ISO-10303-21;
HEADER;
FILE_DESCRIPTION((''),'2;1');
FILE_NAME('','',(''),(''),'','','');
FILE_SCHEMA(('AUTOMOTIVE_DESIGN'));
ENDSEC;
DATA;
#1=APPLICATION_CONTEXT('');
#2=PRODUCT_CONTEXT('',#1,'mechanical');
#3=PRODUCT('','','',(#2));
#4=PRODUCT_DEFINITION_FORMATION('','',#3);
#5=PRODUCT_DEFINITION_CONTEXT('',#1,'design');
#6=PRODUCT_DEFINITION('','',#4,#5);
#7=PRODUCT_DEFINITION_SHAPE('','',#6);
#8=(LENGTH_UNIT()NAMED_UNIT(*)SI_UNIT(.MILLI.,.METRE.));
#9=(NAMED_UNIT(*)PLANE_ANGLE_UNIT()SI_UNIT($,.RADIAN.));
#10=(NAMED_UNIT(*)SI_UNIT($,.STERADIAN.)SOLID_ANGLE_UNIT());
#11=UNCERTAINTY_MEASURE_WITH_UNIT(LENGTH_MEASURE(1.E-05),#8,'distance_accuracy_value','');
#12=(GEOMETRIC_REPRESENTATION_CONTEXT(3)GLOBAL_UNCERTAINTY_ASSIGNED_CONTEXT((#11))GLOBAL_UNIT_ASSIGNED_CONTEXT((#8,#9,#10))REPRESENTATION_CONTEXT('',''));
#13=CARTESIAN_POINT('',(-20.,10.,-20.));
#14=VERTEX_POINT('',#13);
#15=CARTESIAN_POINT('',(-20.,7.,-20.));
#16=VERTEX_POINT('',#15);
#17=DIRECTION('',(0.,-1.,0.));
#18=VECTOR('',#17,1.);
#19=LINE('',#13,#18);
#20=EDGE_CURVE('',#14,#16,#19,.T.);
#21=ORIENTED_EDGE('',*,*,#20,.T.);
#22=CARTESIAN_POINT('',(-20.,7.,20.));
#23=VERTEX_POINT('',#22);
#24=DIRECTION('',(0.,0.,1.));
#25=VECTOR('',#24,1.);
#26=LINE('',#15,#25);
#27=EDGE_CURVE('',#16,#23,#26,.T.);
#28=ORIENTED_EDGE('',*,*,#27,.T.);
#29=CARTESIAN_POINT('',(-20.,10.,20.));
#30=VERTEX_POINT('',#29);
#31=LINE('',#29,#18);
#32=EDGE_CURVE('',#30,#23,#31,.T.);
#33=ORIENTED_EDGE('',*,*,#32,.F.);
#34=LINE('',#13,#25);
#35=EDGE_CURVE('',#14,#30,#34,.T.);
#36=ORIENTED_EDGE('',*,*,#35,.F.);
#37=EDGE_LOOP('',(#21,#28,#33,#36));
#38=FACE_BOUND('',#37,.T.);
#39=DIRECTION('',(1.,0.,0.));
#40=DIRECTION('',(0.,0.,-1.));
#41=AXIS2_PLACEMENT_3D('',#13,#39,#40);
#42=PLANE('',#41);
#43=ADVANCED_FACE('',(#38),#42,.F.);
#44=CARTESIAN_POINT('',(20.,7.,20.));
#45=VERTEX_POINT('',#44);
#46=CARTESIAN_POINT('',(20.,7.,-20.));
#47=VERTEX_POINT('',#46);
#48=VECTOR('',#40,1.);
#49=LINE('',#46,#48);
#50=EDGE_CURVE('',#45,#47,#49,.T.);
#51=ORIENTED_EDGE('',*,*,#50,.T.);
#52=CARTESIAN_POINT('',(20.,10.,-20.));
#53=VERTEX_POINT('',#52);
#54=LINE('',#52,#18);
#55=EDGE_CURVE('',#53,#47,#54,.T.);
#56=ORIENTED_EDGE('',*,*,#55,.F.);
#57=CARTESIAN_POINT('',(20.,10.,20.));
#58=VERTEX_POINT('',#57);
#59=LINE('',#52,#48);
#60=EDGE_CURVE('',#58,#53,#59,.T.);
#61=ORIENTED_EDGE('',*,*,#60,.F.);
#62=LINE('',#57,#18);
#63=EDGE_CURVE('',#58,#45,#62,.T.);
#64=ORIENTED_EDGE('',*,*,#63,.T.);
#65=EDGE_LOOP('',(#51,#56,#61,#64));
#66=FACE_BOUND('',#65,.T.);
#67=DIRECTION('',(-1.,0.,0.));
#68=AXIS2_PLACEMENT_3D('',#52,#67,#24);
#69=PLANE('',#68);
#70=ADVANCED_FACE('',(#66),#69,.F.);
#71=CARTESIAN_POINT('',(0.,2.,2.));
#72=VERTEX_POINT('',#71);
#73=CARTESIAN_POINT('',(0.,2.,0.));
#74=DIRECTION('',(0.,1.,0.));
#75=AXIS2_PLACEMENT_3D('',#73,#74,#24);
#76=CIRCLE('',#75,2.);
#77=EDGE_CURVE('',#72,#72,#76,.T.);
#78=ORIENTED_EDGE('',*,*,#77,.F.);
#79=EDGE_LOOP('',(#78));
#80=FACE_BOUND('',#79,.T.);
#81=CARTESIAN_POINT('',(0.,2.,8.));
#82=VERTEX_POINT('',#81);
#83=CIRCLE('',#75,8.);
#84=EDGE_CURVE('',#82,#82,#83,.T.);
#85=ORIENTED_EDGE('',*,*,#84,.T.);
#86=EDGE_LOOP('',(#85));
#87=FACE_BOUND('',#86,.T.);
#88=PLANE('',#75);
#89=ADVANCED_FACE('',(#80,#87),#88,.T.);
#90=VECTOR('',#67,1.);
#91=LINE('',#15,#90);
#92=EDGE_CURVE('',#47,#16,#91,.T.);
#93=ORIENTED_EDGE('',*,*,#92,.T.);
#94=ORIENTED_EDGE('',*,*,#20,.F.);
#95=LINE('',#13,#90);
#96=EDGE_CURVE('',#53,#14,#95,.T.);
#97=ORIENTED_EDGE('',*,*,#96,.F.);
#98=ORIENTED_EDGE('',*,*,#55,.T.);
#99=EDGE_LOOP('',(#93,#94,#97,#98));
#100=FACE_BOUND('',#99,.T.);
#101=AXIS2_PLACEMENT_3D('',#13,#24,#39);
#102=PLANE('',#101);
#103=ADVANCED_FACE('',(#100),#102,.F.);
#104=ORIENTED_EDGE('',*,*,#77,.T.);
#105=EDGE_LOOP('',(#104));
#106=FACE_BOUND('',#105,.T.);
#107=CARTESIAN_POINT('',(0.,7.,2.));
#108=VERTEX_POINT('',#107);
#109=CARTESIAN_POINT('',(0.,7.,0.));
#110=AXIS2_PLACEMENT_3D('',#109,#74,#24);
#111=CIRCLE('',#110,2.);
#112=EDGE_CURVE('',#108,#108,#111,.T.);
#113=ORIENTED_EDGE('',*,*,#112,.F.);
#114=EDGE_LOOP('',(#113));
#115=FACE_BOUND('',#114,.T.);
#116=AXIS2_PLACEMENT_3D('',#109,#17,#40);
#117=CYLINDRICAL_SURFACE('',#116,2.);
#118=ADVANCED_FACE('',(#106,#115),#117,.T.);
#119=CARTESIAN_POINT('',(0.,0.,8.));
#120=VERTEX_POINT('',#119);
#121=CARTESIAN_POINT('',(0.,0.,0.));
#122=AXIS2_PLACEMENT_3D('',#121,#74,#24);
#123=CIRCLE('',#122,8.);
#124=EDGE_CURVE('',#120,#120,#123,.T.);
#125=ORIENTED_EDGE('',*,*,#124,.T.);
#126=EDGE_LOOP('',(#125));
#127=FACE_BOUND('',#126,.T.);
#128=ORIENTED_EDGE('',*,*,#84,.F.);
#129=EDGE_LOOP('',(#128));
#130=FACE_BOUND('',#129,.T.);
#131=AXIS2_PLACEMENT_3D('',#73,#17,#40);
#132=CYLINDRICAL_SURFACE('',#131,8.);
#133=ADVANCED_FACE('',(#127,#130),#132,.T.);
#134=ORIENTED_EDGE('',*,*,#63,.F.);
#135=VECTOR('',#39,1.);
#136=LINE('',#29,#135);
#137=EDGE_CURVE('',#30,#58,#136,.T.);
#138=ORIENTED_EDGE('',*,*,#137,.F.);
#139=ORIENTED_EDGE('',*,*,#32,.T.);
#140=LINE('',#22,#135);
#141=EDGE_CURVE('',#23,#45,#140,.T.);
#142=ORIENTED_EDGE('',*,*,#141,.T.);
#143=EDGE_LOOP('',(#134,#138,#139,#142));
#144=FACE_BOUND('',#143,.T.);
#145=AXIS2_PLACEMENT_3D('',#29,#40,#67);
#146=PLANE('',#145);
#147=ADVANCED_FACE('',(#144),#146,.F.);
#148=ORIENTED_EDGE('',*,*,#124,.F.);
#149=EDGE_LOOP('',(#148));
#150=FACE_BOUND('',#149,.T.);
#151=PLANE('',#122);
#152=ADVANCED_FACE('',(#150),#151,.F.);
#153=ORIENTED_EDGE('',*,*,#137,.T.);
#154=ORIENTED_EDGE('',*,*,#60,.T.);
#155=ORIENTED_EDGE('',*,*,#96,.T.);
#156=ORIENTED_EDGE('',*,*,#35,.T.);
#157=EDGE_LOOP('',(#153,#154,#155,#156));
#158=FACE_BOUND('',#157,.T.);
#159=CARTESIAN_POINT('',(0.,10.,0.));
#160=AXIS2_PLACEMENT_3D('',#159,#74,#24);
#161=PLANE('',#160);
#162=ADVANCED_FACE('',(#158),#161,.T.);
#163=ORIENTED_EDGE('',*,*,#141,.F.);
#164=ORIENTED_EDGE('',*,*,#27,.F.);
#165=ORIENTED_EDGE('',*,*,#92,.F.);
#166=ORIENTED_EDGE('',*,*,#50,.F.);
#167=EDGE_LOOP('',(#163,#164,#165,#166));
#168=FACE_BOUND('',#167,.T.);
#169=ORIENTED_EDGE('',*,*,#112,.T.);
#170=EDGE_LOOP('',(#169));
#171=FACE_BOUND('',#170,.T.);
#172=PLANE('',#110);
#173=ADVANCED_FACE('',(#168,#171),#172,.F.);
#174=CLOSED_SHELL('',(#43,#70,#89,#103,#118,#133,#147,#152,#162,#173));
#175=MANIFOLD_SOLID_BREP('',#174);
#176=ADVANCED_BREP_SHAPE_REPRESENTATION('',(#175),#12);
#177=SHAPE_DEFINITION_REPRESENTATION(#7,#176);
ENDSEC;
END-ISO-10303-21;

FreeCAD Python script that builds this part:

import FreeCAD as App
import Part
import Sketcher
Q = App.Units.Quantity


def add_polygon(sketch, points):
    """Adds a closed chain of lines whose ends are joined by coincident constraints."""
    first, n = sketch.GeometryCount, len(points)
    for a, b in zip(points, points[1:] + points[:1]):
        sketch.addGeometry(Part.LineSegment(App.Vector(*a, 0), App.Vector(*b, 0)), False)
    for i in range(n):
        sketch.addConstraint(Sketcher.Constraint("Coincident", first + i, 2, first + (i + 1) % n, 1))

doc = App.newDocument("Part")
params = doc.addObject("Spreadsheet::Sheet", "Params")
for row, (alias, value) in enumerate([
    ("sketch1_diameter", "16 mm"),
    ("pad1_length", "2 mm"),
    ("sketch2_diameter", "4 mm"),
    ("pad2_length", "5 mm"),
    ("sketch3_width", "40 mm"),
    ("pad3_length", "3 mm"),
], start=1):
    params.set(f"A{row}", alias)
    params.set(f"B{row}", "=" + value)
    params.setAlias(f"B{row}", alias)

body = doc.addObject("PartDesign::Body", "Body")

# Sketch on XZ plane
sketch1 = body.newObject("Sketcher::SketchObject", "Sketch")
sketch1.AttachmentSupport = (doc.getObject("XZ_Plane"), [""])
sketch1.MapMode = "FlatFace"
sketch1.addGeometry(Part.Circle(App.Vector(0, 0, 0), App.Vector(0, 0, 1), 8), False)
sketch1.addConstraint([
    Sketcher.Constraint("Coincident", 0, 3, -1, 1),
    Sketcher.Constraint("Diameter", 0, Q("16 mm")),
])
sketch1.setExpression("Constraints[1]", "Params.sketch1_diameter")
pad1 = body.newObject("PartDesign::Pad", "Pad")
pad1.Profile = sketch1
pad1.setExpression("Length", "Params.pad1_length")
pad1.Reversed = True

# Sketch on XZ plane
sketch2 = body.newObject("Sketcher::SketchObject", "Sketch001")
sketch2.AttachmentSupport = (doc.getObject("XZ_Plane"), [""])
sketch2.MapMode = "FlatFace"
sketch2.AttachmentOffset = App.Placement(App.Vector(0, 0, -2), App.Rotation())
sketch2.addGeometry(Part.Circle(App.Vector(0, 0, 0), App.Vector(0, 0, 1), 2), False)
sketch2.addConstraint([
    Sketcher.Constraint("Coincident", 0, 3, -1, 1),
    Sketcher.Constraint("Diameter", 0, Q("4 mm")),
])
sketch2.setExpression("Constraints[1]", "Params.sketch2_diameter")
pad2 = body.newObject("PartDesign::Pad", "Pad001")
pad2.Profile = sketch2
pad2.setExpression("Length", "Params.pad2_length")
pad2.Reversed = True

# Sketch on XZ plane
sketch3 = body.newObject("Sketcher::SketchObject", "Sketch002")
sketch3.AttachmentSupport = (doc.getObject("XZ_Plane"), [""])
sketch3.MapMode = "FlatFace"
sketch3.AttachmentOffset = App.Placement(App.Vector(0, 0, -7), App.Rotation())
add_polygon(sketch3, [(-20, -20), (-20, 20), (20, 20), (20, -20)])  # lines 0-3
sketch3.addConstraint([
    Sketcher.Constraint("Vertical", 0),
    Sketcher.Constraint("Horizontal", 1),
    Sketcher.Constraint("Vertical", 2),
    Sketcher.Constraint("Horizontal", 3),
    Sketcher.Constraint("Symmetric", 0, 2, 2, 2, -1, 1),
    Sketcher.Constraint("Equal", 3, 0),
    Sketcher.Constraint("DistanceX", 1, 1, 1, 2, Q("40 mm")),
])
sketch3.setExpression("Constraints[10]", "Params.sketch3_width")
pad3 = body.newObject("PartDesign::Pad", "Pad002")
pad3.Profile = sketch3
pad3.setExpression("Length", "Params.pad3_length")
pad3.Reversed = True

doc.recompute()
